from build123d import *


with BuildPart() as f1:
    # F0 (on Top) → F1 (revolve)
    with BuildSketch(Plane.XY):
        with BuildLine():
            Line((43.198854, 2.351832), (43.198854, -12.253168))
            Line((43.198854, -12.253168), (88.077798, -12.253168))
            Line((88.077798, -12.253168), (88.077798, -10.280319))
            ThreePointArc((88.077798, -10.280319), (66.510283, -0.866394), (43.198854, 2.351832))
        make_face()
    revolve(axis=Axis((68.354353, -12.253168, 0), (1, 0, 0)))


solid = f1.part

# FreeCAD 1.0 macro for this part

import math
import FreeCAD as App
import Part
import Sketcher
from FreeCAD import Vector
Q = App.Units.Quantity

doc = App.newDocument("Part")
body = doc.addObject("PartDesign::Body", "Body")

sketch1 = body.newObject("Sketcher::SketchObject", "Sketch")
sketch1.AttachmentSupport = (doc.getObject("XY_Plane"), [""])
sketch1.MapMode = "FlatFace"
sketch1.addGeometry([
    Part.LineSegment(Vector(43.2, 2.4, 0), Vector(43.2, -12.3, 0)),
    Part.LineSegment(Vector(43.2, -12.3, 0), Vector(88.1, -12.3, 0)),
    Part.LineSegment(Vector(88.1, -12.3, 0), Vector(88.1, -10.3, 0)),
    Part.ArcOfCircle(Part.Circle(Vector(43.2, -83.7, 0), Vector(0, 0, 1), 86), math.radians(59), math.radians(90)),
], False)
sketch1.addGeometry(Part.LineSegment(Vector(43.2, -12.3, 0), Vector(88.1, -12.3, 0)), True)
sketch1.addConstraint([
    Sketcher.Constraint("Coincident", 0, 2, 1, 1),
    Sketcher.Constraint("Coincident", 1, 2, 2, 1),
    Sketcher.Constraint("Coincident", 2, 2, 3, 1),
    Sketcher.Constraint("Coincident", 3, 2, 0, 1),
    Sketcher.Constraint("Vertical", 0),
    Sketcher.Constraint("Horizontal", 1),
    Sketcher.Constraint("Vertical", 2),
    Sketcher.Constraint("Horizontal", 4),
    Sketcher.Constraint("Coincident", 4, 1, 0, 2),
    Sketcher.Constraint("Vertical", 3, 3, 0, 2),
    Sketcher.Constraint("Vertical", 2, 2, 4, 2),
    Sketcher.Constraint("DistanceY", 0, 2, 0, 1, Q("0.575 in")),
    Sketcher.Constraint("Radius", 3, Q("86.038029 mm")),
    Sketcher.Constraint("DistanceY", 2, 1, 2, 2, Q("1.972849 mm")),
    Sketcher.Constraint("DistanceX", -1, 1, 1, 2, Q("88.077798 mm")),
    Sketcher.Constraint("DistanceY", 2, 2, -1, 1, Q("10.280319 mm")),
])
revolution = body.newObject("PartDesign::Revolution", "Revolution")
revolution.Profile = sketch1
revolution.ReferenceAxis = (sketch1, ["Axis0"])
revolution.Angle = 360

doc.recompute()
